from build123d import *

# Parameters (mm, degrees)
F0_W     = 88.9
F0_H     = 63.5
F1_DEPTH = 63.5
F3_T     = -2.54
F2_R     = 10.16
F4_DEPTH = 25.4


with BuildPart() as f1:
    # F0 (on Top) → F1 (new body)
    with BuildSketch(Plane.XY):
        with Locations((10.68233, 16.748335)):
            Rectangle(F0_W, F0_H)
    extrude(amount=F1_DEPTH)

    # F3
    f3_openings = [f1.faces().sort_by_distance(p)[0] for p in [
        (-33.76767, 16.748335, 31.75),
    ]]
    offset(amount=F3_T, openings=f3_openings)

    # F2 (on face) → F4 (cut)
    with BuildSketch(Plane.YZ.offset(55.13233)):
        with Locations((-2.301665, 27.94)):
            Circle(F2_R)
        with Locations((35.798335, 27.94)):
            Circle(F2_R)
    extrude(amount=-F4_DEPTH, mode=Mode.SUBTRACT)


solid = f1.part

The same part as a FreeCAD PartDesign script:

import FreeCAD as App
import Part
import Sketcher
from FreeCAD import Vector
Q = App.Units.Quantity


def faces_at(feature, points):
    """Names of the faces that lie closest to the given points."""
    faces = feature.Shape.Faces
    near = lambda p: min(range(len(faces)), key=lambda i: faces[i].distToShape(Part.Vertex(*p))[0])
    return sorted({f"Face{near(p) + 1}" for p in points})


def add_polygon(sketch, points):
    """Adds a closed chain of lines whose ends are joined by coincident constraints."""
    first, n = sketch.GeometryCount, len(points)
    for a, b in zip(points, points[1:] + points[:1]):
        sketch.addGeometry(Part.LineSegment(App.Vector(*a, 0), App.Vector(*b, 0)), False)
    for i in range(n):
        sketch.addConstraint(Sketcher.Constraint("Coincident", first + i, 2, first + (i + 1) % n, 1))

doc = App.newDocument("Part")
body = doc.addObject("PartDesign::Body", "Body")

sketch1 = body.newObject("Sketcher::SketchObject", "Sketch")
sketch1.AttachmentSupport = (doc.getObject("XY_Plane"), [""])
sketch1.MapMode = "FlatFace"
add_polygon(sketch1, [(-33.76767, 48.498335), (-33.76767, -15.001665), (55.13233, -15.001665), (55.13233, 48.498335)])
sketch1.addConstraint([
    Sketcher.Constraint("Vertical", 0),
    Sketcher.Constraint("Horizontal", 1),
    Sketcher.Constraint("Vertical", 2),
    Sketcher.Constraint("Horizontal", 3),
    Sketcher.Constraint("DistanceX", 1, 1, 1, 2, Q("3.5 in")),
    Sketcher.Constraint("DistanceY", 0, 2, 0, 1, Q("2.5 in")),
    Sketcher.Constraint("DistanceX", 0, 2, -1, 1, 33.76767),
    Sketcher.Constraint("DistanceY", 0, 2, -1, 1, 15.001665),
])
pad1 = body.newObject("PartDesign::Pad", "Pad")
pad1.Profile = sketch1
pad1.Length = Q("2.5 in")
doc.recompute()

thickness = body.newObject("PartDesign::Thickness", "Thickness")
thickness.Base = (pad1, faces_at(pad1, [(-33.768, 16.748, 31.75)]))
thickness.Value = Q("0.1 in")
thickness.Reversed = True
thickness.Join = "Arc"

sketch2 = body.newObject("Sketcher::SketchObject", "Sketch001")
sketch2.AttachmentSupport = (doc.getObject("YZ_Plane"), [""])
sketch2.MapMode = "FlatFace"
sketch2.AttachmentOffset = App.Placement(Vector(0, 0, 55.13233), App.Rotation())
sketch2.addGeometry([
    Part.Circle(Vector(-2.301665, 27.94, 0), Vector(0, 0, 1), 10.16),
    Part.Circle(Vector(35.798335, 27.94, 0), Vector(0, 0, 1), 10.16),
], False)
sketch2.addConstraint([
    Sketcher.Constraint("Equal", 0, 1),
    Sketcher.Constraint("Horizontal", 0, 3, 1, 3),
    Sketcher.Constraint("Diameter", 0, Q("0.8 in")),
    Sketcher.Constraint("DistanceY", -1, 1, 0, 3, Q("1.1 in")),
    Sketcher.Constraint("DistanceX", 0, 3, 1, 3, Q("1.5 in")),
    Sketcher.Constraint("DistanceX", 0, 3, -1, 1, 2.301665),
])
pocket1 = body.newObject("PartDesign::Pocket", "Pocket")
pocket1.Profile = sketch2
pocket1.Length = Q("1 in")

doc.recompute()
